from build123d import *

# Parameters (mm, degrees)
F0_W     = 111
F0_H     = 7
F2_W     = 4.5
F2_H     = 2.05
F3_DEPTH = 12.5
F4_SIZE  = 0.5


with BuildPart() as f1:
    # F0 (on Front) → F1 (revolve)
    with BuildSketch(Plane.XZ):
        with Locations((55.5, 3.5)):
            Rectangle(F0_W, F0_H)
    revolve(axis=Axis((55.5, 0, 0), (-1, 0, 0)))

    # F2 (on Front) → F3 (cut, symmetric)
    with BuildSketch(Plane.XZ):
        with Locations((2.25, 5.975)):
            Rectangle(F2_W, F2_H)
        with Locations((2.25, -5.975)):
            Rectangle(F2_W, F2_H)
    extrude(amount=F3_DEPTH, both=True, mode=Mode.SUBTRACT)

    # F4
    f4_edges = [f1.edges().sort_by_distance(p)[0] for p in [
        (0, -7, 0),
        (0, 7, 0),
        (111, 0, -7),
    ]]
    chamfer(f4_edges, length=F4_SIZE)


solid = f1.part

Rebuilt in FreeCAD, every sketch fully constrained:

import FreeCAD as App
import Part
import Sketcher
from FreeCAD import Vector
Q = App.Units.Quantity


def edges_at(feature, points):
    """Names of the edges that pass closest to the given points."""
    edges = feature.Shape.Edges
    near = lambda p: min(range(len(edges)), key=lambda i: edges[i].distToShape(Part.Vertex(*p))[0])
    return sorted({f"Edge{near(p) + 1}" for p in points})

doc = App.newDocument("Part")
body = doc.addObject("PartDesign::Body", "Body")

sketch1 = body.newObject("Sketcher::SketchObject", "Sketch")
sketch1.AttachmentSupport = (doc.getObject("XZ_Plane"), [""])
sketch1.MapMode = "FlatFace"
sketch1.addGeometry(Part.LineSegment(Vector(0, 7, 0), Vector(0, 0, 0)), False)
sketch1.addGeometry(Part.LineSegment(Vector(0, 0, 0), Vector(111, 0, 0)), False)
sketch1.addGeometry(Part.LineSegment(Vector(111, 0, 0), Vector(111, 7, 0)), False)
sketch1.addGeometry(Part.LineSegment(Vector(111, 7, 0), Vector(0, 7, 0)), False)
sketch1.addConstraint(Sketcher.Constraint("Coincident", 0, 2, 1, 1))
sketch1.addConstraint(Sketcher.Constraint("Coincident", 1, 2, 2, 1))
sketch1.addConstraint(Sketcher.Constraint("Coincident", 2, 2, 3, 1))
sketch1.addConstraint(Sketcher.Constraint("Coincident", 3, 2, 0, 1))
sketch1.addConstraint(Sketcher.Constraint("Vertical", 0))
sketch1.addConstraint(Sketcher.Constraint("Horizontal", 1))
sketch1.addConstraint(Sketcher.Constraint("Vertical", 2))
sketch1.addConstraint(Sketcher.Constraint("Horizontal", 3))
sketch1.addConstraint(Sketcher.Constraint("Coincident", 0, 2, -1, 1))
sketch1.addConstraint(Sketcher.Constraint("DistanceX", 1, 1, 1, 2, Q("111 mm")))
sketch1.addConstraint(Sketcher.Constraint("DistanceY", 0, 2, 0, 1, Q("7 mm")))
revolution = body.newObject("PartDesign::Revolution", "Revolution")
revolution.Profile = sketch1
revolution.ReferenceAxis = (sketch1, ["H_Axis"])
revolution.Angle = 360

sketch2 = body.newObject("Sketcher::SketchObject", "Sketch001")
sketch2.AttachmentSupport = (doc.getObject("XZ_Plane"), [""])
sketch2.MapMode = "FlatFace"
sketch2.addGeometry(Part.LineSegment(Vector(0, 7, 0), Vector(0, 5, 0)), False)
sketch2.addGeometry(Part.LineSegment(Vector(0, 5, 0), Vector(4.5, 5, 0)), False)
sketch2.addGeometry(Part.LineSegment(Vector(4.5, 5, 0), Vector(4.5, 7, 0)), False)
sketch2.addGeometry(Part.LineSegment(Vector(4.5, 7, 0), Vector(0, 7, 0)), False)
sketch2.addGeometry(Part.LineSegment(Vector(0, -5, 0), Vector(0, -7, 0)), False)
sketch2.addGeometry(Part.LineSegment(Vector(0, -7, 0), Vector(4.5, -7, 0)), False)
sketch2.addGeometry(Part.LineSegment(Vector(4.5, -7, 0), Vector(4.5, -5, 0)), False)
sketch2.addGeometry(Part.LineSegment(Vector(4.5, -5, 0), Vector(0, -5, 0)), False)
sketch2.addConstraint(Sketcher.Constraint("Coincident", 0, 2, 1, 1))
sketch2.addConstraint(Sketcher.Constraint("Coincident", 1, 2, 2, 1))
sketch2.addConstraint(Sketcher.Constraint("Coincident", 2, 2, 3, 1))
sketch2.addConstraint(Sketcher.Constraint("Coincident", 3, 2, 0, 1))
sketch2.addConstraint(Sketcher.Constraint("Coincident", 4, 2, 5, 1))
sketch2.addConstraint(Sketcher.Constraint("Coincident", 5, 2, 6, 1))
sketch2.addConstraint(Sketcher.Constraint("Coincident", 6, 2, 7, 1))
sketch2.addConstraint(Sketcher.Constraint("Coincident", 7, 2, 4, 1))
sketch2.addConstraint(Sketcher.Constraint("Vertical", 0))
sketch2.addConstraint(Sketcher.Constraint("Horizontal", 1))
sketch2.addConstraint(Sketcher.Constraint("Vertical", 2))
sketch2.addConstraint(Sketcher.Constraint("Horizontal", 3))
sketch2.addConstraint(Sketcher.Constraint("Vertical", 4))
sketch2.addConstraint(Sketcher.Constraint("Horizontal", 5))
sketch2.addConstraint(Sketcher.Constraint("Vertical", 6))
sketch2.addConstraint(Sketcher.Constraint("Horizontal", 7))
sketch2.addConstraint(Sketcher.Constraint("Symmetric", 3, 2, 4, 2, -1, 1))
sketch2.addConstraint(Sketcher.Constraint("Symmetric", 1, 2, 6, 2, -1))
sketch2.addConstraint(Sketcher.Constraint("PointOnObject", 0, 2, -2))
sketch2.addConstraint(Sketcher.Constraint("DistanceX", 1, 1, 1, 2, Q("4.5 mm")))
sketch2.addConstraint(Sketcher.Constraint("DistanceY", -1, 1, 2, 2, Q("7 mm")))
sketch2.addConstraint(Sketcher.Constraint("DistanceY", 0, 2, 0, 1, Q("2.05 mm")))
pocket1 = body.newObject("PartDesign::Pocket", "Pocket")
pocket1.Profile = sketch2
pocket1.Length = 25
pocket1.Midplane = True
doc.recompute()

chamfer = body.newObject("PartDesign::Chamfer", "Chamfer")
chamfer.Base = (pocket1, edges_at(pocket1, [(0, -7, 0), (0, 7, 0), (111, 0, -7)]))
chamfer.Size = 0.5

doc.recompute()
